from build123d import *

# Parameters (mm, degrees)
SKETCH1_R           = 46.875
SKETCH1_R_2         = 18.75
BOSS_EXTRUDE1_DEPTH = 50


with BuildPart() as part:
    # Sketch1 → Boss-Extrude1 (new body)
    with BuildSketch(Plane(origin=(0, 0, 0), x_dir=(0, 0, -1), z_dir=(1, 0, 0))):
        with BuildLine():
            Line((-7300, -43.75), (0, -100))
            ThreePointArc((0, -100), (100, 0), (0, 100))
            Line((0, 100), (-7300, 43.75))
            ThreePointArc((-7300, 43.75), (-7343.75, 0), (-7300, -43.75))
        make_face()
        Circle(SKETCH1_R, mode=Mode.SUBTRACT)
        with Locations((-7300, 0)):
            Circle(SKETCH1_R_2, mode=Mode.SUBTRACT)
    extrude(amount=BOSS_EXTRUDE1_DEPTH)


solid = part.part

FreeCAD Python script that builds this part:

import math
import FreeCAD as App
import Part
import Sketcher

V = App.Vector
Q = App.Units.Quantity

doc = App.newDocument("Part")
body = doc.addObject("PartDesign::Body", "Body")

sketch1 = doc.addObject("Sketcher::SketchObject", "Sketch")
body.addObject(sketch1)
sketch1.AttachmentSupport = (doc.YZ_Plane, [""])
sketch1.MapMode = "FlatFace"
sketch1.addGeometry([
    Part.LineSegment(V(-44, 7300, 0), V(-100, 0, 0)),
    Part.ArcOfCircle(Part.Circle(V(0, 0, 0), V(0, 0, 1), 100), math.radians(180), math.radians(360)),
    Part.LineSegment(V(100, 0, 0), V(44, 7300, 0)),
    Part.ArcOfCircle(Part.Circle(V(0, 7300, 0), V(0, 0, 1), 44), math.radians(0), math.radians(180)),
    Part.Circle(V(0, 7300, 0), V(0, 0, 1), 19),
    Part.Circle(V(0, 0, 0), V(0, 0, 1), 47),
], False)
sketch1.addConstraint([
    Sketcher.Constraint("Coincident", 0, 2, 1, 1),
    Sketcher.Constraint("Coincident", 1, 2, 2, 1),
    Sketcher.Constraint("Coincident", 2, 2, 3, 1),
    Sketcher.Constraint("Coincident", 3, 2, 0, 1),
    Sketcher.Constraint("Coincident", 1, 3, -1, 1),
    Sketcher.Constraint("Coincident", 5, 3, -1, 1),
    Sketcher.Constraint("Coincident", 4, 3, 3, 3),
    Sketcher.Constraint("Symmetric", 2, 2, 3, 2, -2),
    Sketcher.Constraint("PointOnObject", 0, 2, -1),
    Sketcher.Constraint("PointOnObject", 1, 2, -1),
    Sketcher.Constraint("Horizontal", 4, 3, 2, 2),
    Sketcher.Constraint("Radius", 1, Q("100 mm")),
    Sketcher.Constraint("Diameter", 4, Q("37.5 mm")),
    Sketcher.Constraint("Diameter", 5, Q("93.75 mm")),
    Sketcher.Constraint("Radius", 3, Q("43.75 mm")),
    Sketcher.Constraint("DistanceY", -1, 1, 3, 3, Q("7300 mm")),
])
pad1 = doc.addObject("PartDesign::Pad", "Pad")
body.addObject(pad1)
pad1.Profile = sketch1
pad1.Length = 50

doc.recompute()
